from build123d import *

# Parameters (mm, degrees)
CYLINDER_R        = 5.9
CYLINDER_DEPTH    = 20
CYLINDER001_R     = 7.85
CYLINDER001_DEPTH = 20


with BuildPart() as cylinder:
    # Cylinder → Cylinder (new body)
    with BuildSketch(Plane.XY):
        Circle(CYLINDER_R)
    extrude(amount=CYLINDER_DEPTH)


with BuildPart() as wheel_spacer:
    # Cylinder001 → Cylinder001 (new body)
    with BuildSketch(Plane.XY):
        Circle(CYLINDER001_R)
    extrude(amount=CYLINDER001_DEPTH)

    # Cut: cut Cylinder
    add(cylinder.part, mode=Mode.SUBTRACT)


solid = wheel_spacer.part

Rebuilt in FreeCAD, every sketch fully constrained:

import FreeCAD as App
import Part
import Sketcher

V = App.Vector

doc = App.newDocument("Part")
body = doc.addObject("PartDesign::Body", "Body")

sketch1 = body.newObject("Sketcher::SketchObject", "Sketch")
sketch1.AttachmentSupport = (doc.getObject("XY_Plane"), [""])
sketch1.MapMode = "FlatFace"
sketch1.addGeometry(Part.Circle(V(0, 0, 0), V(0, 0, 1), 5.9), False)
sketch1.addConstraint([
    Sketcher.Constraint("Coincident", 0, 3, -1, 1),
    Sketcher.Constraint("Diameter", 0, 11.8),
])
pad1 = body.newObject("PartDesign::Pad", "Pad")
pad1.Profile = sketch1
pad1.Length = 20
body2 = doc.addObject("PartDesign::Body", "Body001")

sketch2 = body2.newObject("Sketcher::SketchObject", "Sketch001")
sketch2.AttachmentSupport = (doc.getObject("XY_Plane001"), [""])
sketch2.MapMode = "FlatFace"
sketch2.addGeometry(Part.Circle(V(0, 0, 0), V(0, 0, 1), 7.85), False)
sketch2.addConstraint([
    Sketcher.Constraint("Coincident", 0, 3, -1, 1),
    Sketcher.Constraint("Diameter", 0, 15.7),
])
pad2 = body2.newObject("PartDesign::Pad", "Pad001")
pad2.Profile = sketch2
pad2.Length = 20
doc.recompute()

boolean = body2.newObject("PartDesign::Boolean", "Boolean")
boolean.Type = "Cut"
boolean.addObjects([body])

doc.recompute()
